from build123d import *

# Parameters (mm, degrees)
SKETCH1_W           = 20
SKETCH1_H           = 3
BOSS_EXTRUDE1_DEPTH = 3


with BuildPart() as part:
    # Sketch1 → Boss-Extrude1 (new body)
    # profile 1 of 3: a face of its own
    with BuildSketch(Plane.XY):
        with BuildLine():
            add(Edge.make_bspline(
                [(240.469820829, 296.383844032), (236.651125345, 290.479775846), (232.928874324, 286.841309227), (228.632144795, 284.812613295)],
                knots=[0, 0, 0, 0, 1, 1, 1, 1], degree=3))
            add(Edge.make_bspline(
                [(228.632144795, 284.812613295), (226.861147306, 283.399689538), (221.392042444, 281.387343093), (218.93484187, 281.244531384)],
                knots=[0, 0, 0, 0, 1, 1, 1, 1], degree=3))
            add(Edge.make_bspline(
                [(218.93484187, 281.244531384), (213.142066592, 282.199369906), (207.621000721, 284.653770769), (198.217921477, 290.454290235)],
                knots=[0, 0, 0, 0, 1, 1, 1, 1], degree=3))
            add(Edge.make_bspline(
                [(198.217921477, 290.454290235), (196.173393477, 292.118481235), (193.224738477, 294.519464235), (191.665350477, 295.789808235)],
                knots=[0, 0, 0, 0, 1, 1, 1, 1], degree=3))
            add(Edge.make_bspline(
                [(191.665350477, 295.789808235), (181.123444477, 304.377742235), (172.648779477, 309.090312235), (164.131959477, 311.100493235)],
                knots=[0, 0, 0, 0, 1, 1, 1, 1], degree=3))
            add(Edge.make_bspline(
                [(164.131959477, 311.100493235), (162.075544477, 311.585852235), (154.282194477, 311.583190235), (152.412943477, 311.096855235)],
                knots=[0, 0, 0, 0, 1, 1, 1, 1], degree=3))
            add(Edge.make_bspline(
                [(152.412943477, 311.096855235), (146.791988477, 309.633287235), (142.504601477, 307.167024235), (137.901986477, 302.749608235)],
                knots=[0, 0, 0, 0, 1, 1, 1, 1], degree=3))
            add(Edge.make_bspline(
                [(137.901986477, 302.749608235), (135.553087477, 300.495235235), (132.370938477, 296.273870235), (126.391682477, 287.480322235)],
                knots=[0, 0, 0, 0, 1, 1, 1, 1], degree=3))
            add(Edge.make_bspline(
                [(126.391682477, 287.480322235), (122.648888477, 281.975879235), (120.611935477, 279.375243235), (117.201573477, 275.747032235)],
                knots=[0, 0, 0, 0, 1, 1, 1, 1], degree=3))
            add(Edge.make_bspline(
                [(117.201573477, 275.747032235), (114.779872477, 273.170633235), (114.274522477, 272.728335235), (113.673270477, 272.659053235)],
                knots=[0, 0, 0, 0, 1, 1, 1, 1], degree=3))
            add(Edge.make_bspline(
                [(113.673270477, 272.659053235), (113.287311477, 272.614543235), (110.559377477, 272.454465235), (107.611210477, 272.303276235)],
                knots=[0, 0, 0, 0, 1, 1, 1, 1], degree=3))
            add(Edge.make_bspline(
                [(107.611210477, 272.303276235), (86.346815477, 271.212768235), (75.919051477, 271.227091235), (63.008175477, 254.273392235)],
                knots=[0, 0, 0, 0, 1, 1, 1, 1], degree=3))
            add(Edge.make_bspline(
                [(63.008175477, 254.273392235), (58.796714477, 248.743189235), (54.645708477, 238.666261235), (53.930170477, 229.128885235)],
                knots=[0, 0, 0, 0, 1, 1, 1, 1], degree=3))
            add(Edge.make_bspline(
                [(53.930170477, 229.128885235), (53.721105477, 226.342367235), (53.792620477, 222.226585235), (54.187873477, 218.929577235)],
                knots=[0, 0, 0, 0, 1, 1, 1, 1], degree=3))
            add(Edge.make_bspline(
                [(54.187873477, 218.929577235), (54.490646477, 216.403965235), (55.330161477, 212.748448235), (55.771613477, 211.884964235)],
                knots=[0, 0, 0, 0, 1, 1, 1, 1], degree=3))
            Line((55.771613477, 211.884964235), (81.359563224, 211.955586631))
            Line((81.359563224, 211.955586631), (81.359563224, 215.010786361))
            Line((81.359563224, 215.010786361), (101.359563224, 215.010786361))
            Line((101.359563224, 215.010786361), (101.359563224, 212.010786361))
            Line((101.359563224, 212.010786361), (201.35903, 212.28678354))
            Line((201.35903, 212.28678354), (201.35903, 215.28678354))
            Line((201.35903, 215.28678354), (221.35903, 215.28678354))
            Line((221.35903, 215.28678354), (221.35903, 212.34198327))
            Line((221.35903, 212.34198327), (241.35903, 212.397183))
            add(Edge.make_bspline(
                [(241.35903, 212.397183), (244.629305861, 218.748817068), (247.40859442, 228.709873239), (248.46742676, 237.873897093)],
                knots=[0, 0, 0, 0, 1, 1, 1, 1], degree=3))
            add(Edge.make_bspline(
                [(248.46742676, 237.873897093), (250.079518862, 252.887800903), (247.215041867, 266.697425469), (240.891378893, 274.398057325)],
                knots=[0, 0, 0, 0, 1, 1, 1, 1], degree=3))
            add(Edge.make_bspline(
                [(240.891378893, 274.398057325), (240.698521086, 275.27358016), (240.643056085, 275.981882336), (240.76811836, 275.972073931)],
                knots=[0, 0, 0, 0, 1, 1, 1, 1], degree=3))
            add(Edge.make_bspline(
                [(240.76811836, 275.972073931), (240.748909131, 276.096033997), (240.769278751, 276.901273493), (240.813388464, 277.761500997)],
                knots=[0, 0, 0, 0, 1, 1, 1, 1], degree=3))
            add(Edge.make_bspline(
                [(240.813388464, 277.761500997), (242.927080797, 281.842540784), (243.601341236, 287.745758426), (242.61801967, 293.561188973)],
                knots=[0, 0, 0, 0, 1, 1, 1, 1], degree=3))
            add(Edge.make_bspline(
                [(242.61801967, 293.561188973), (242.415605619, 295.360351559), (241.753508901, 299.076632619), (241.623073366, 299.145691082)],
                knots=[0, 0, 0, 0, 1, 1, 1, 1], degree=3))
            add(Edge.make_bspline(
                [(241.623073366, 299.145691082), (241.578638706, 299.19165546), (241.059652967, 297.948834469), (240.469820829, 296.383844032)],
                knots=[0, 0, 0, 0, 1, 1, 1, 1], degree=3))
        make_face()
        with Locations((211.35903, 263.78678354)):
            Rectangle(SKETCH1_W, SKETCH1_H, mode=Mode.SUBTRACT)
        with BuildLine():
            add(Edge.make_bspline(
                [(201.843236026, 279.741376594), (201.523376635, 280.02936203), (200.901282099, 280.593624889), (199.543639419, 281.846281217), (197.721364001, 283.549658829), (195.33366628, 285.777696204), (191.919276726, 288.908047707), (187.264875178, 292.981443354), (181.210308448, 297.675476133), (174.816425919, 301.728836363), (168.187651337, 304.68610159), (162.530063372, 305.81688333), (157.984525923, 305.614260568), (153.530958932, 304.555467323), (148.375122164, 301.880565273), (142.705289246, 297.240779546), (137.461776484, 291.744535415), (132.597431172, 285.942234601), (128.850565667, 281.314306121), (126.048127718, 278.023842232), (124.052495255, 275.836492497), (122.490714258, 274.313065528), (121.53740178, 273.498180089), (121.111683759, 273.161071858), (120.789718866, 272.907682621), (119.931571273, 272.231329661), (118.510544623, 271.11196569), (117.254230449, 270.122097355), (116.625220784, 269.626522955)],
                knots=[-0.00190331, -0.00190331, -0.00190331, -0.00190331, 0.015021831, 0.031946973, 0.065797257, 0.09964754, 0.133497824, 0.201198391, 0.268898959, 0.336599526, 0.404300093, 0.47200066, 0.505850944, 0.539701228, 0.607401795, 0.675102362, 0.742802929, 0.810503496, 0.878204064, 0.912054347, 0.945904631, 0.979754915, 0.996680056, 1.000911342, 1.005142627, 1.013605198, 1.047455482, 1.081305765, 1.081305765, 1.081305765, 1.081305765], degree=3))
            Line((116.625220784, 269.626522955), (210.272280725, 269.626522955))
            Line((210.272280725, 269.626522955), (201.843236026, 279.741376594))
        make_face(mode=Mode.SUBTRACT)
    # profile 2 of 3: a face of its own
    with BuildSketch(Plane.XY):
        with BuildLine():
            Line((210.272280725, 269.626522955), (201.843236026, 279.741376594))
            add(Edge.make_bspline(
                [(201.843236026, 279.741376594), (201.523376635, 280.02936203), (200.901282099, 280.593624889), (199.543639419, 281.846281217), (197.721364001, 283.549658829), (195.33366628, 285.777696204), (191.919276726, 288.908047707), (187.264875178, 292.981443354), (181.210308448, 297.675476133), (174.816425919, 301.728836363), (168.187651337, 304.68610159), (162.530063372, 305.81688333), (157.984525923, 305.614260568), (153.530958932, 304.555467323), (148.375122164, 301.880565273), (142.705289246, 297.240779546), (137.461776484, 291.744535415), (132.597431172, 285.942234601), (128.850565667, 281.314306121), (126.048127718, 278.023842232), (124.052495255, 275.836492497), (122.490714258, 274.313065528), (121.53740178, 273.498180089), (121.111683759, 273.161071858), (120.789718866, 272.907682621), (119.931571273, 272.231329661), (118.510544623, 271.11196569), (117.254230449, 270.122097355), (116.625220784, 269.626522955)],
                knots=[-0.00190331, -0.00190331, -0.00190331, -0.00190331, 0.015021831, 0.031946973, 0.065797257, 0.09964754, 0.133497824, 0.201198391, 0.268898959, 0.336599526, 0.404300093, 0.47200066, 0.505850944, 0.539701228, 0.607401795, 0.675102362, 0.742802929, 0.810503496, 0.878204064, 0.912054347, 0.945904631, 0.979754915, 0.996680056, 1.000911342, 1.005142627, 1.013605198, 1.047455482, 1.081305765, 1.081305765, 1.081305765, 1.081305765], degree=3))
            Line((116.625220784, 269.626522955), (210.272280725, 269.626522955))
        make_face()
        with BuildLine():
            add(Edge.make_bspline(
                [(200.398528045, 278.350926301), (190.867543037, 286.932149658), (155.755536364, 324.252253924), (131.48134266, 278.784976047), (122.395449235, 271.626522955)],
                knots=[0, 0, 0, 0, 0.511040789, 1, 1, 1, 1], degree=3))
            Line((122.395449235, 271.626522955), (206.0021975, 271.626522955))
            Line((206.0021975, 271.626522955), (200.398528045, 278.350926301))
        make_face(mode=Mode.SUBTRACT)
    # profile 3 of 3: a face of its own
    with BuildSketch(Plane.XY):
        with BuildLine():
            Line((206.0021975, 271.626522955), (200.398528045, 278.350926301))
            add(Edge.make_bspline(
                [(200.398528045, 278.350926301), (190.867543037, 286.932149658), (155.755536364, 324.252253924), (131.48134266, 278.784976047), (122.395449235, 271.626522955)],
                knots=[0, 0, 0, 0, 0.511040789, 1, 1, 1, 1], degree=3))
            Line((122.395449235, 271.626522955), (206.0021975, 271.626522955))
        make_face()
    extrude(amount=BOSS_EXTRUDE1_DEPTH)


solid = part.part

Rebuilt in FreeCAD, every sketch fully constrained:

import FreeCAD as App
import Part
import Sketcher

V = App.Vector


def add_polygon(sketch, points):
    """Adds a closed chain of lines whose ends are joined by coincident constraints."""
    first, n = sketch.GeometryCount, len(points)
    for a, b in zip(points, points[1:] + points[:1]):
        sketch.addGeometry(Part.LineSegment(App.Vector(*a, 0), App.Vector(*b, 0)), False)
    for i in range(n):
        sketch.addConstraint(Sketcher.Constraint("Coincident", first + i, 2, first + (i + 1) % n, 1))

doc = App.newDocument("Part")
body = doc.addObject("PartDesign::Body", "Body")

# Sketch on XY plane
sketch1 = body.newObject("Sketcher::SketchObject", "Sketch")
sketch1.AttachmentSupport = (doc.getObject("XY_Plane"), [""])
sketch1.MapMode = "FlatFace"
sketch1.addGeometry(Part.BSplineCurve([V(240.469821, 296.383844, 0), V(236.651125, 290.479776, 0), V(232.928874, 286.841309, 0), V(228.632145, 284.812613, 0)], [4, 4], [0, 1], False, 3, [1, 1, 1, 1], False), False)  # 0
sketch1.addGeometry(Part.BSplineCurve([V(228.632145, 284.812613, 0), V(226.861147, 283.39969, 0), V(221.392042, 281.387343, 0), V(218.934842, 281.244531, 0)], [4, 4], [0, 1], False, 3, [1, 1, 1, 1], False), False)  # 1
sketch1.addGeometry(Part.BSplineCurve([V(218.934842, 281.244531, 0), V(213.142067, 282.19937, 0), V(207.621001, 284.653771, 0), V(198.217921, 290.45429, 0)], [4, 4], [0, 1], False, 3, [1, 1, 1, 1], False), False)  # 2
sketch1.addGeometry(Part.BSplineCurve([V(198.217921, 290.45429, 0), V(196.173393, 292.118481, 0), V(193.224738, 294.519464, 0), V(191.66535, 295.789808, 0)], [4, 4], [0, 1], False, 3, [1, 1, 1, 1], False), False)  # 3
sketch1.addGeometry(Part.BSplineCurve([V(191.66535, 295.789808, 0), V(181.123444, 304.377742, 0), V(172.648779, 309.090312, 0), V(164.131959, 311.100493, 0)], [4, 4], [0, 1], False, 3, [1, 1, 1, 1], False), False)  # 4
sketch1.addGeometry(Part.BSplineCurve([V(164.131959, 311.100493, 0), V(162.075544, 311.585852, 0), V(154.282194, 311.58319, 0), V(152.412943, 311.096855, 0)], [4, 4], [0, 1], False, 3, [1, 1, 1, 1], False), False)  # 5
sketch1.addGeometry(Part.BSplineCurve([V(152.412943, 311.096855, 0), V(146.791988, 309.633287, 0), V(142.504601, 307.167024, 0), V(137.901986, 302.749608, 0)], [4, 4], [0, 1], False, 3, [1, 1, 1, 1], False), False)  # 6
sketch1.addGeometry(Part.BSplineCurve([V(137.901986, 302.749608, 0), V(135.553087, 300.495235, 0), V(132.370938, 296.27387, 0), V(126.391682, 287.480322, 0)], [4, 4], [0, 1], False, 3, [1, 1, 1, 1], False), False)  # 7
sketch1.addGeometry(Part.BSplineCurve([V(126.391682, 287.480322, 0), V(122.648888, 281.975879, 0), V(120.611935, 279.375243, 0), V(117.201573, 275.747032, 0)], [4, 4], [0, 1], False, 3, [1, 1, 1, 1], False), False)  # 8
sketch1.addGeometry(Part.BSplineCurve([V(117.201573, 275.747032, 0), V(114.779872, 273.170633, 0), V(114.274522, 272.728335, 0), V(113.67327, 272.659053, 0)], [4, 4], [0, 1], False, 3, [1, 1, 1, 1], False), False)  # 9
sketch1.addGeometry(Part.BSplineCurve([V(113.67327, 272.659053, 0), V(113.287311, 272.614543, 0), V(110.559377, 272.454465, 0), V(107.61121, 272.303276, 0)], [4, 4], [0, 1], False, 3, [1, 1, 1, 1], False), False)  # 10
sketch1.addGeometry(Part.BSplineCurve([V(107.61121, 272.303276, 0), V(86.346815, 271.212768, 0), V(75.919051, 271.227091, 0), V(63.008175, 254.273392, 0)], [4, 4], [0, 1], False, 3, [1, 1, 1, 1], False), False)  # 11
sketch1.addGeometry(Part.BSplineCurve([V(63.008175, 254.273392, 0), V(58.796714, 248.743189, 0), V(54.645708, 238.666261, 0), V(53.93017, 229.128885, 0)], [4, 4], [0, 1], False, 3, [1, 1, 1, 1], False), False)  # 12
sketch1.addGeometry(Part.BSplineCurve([V(53.93017, 229.128885, 0), V(53.721105, 226.342367, 0), V(53.79262, 222.226585, 0), V(54.187873, 218.929577, 0)], [4, 4], [0, 1], False, 3, [1, 1, 1, 1], False), False)  # 13
sketch1.addGeometry(Part.BSplineCurve([V(54.187873, 218.929577, 0), V(54.490646, 216.403965, 0), V(55.330161, 212.748448, 0), V(55.771613, 211.884964, 0)], [4, 4], [0, 1], False, 3, [1, 1, 1, 1], False), False)  # 14
sketch1.addGeometry(Part.LineSegment(V(55.771613, 211.884964, 0), V(81.359563, 211.955587, 0)), False)  # 15
sketch1.addGeometry(Part.LineSegment(V(81.359563, 211.955587, 0), V(81.359563, 215.010786, 0)), False)  # 16
sketch1.addGeometry(Part.LineSegment(V(81.359563, 215.010786, 0), V(101.359563, 215.010786, 0)), False)  # 17
sketch1.addGeometry(Part.LineSegment(V(101.359563, 215.010786, 0), V(101.359563, 212.010786, 0)), False)  # 18
sketch1.addGeometry(Part.LineSegment(V(101.359563, 212.010786, 0), V(201.35903, 212.286784, 0)), False)  # 19
sketch1.addGeometry(Part.LineSegment(V(201.35903, 212.286784, 0), V(201.35903, 215.286784, 0)), False)  # 20
sketch1.addGeometry(Part.LineSegment(V(201.35903, 215.286784, 0), V(221.35903, 215.286784, 0)), False)  # 21
sketch1.addGeometry(Part.LineSegment(V(221.35903, 215.286784, 0), V(221.35903, 212.341983, 0)), False)  # 22
sketch1.addGeometry(Part.LineSegment(V(221.35903, 212.341983, 0), V(241.35903, 212.397183, 0)), False)  # 23
sketch1.addGeometry(Part.BSplineCurve([V(241.35903, 212.397183, 0), V(244.629306, 218.748817, 0), V(247.408594, 228.709873, 0), V(248.467427, 237.873897, 0)], [4, 4], [0, 1], False, 3, [1, 1, 1, 1], False), False)  # 24
sketch1.addGeometry(Part.BSplineCurve([V(248.467427, 237.873897, 0), V(250.079519, 252.887801, 0), V(247.215042, 266.697425, 0), V(240.891379, 274.398057, 0)], [4, 4], [0, 1], False, 3, [1, 1, 1, 1], False), False)  # 25
sketch1.addGeometry(Part.BSplineCurve([V(240.891379, 274.398057, 0), V(240.698521, 275.27358, 0), V(240.643056, 275.981882, 0), V(240.768118, 275.972074, 0)], [4, 4], [0, 1], False, 3, [1, 1, 1, 1], False), False)  # 26
sketch1.addGeometry(Part.BSplineCurve([V(240.768118, 275.972074, 0), V(240.748909, 276.096034, 0), V(240.769279, 276.901273, 0), V(240.813388, 277.761501, 0)], [4, 4], [0, 1], False, 3, [1, 1, 1, 1], False), False)  # 27
sketch1.addGeometry(Part.BSplineCurve([V(240.813388, 277.761501, 0), V(242.927081, 281.842541, 0), V(243.601341, 287.745758, 0), V(242.61802, 293.561189, 0)], [4, 4], [0, 1], False, 3, [1, 1, 1, 1], False), False)  # 28
sketch1.addGeometry(Part.BSplineCurve([V(242.61802, 293.561189, 0), V(242.415606, 295.360352, 0), V(241.753509, 299.076633, 0), V(241.623073, 299.145691, 0)], [4, 4], [0, 1], False, 3, [1, 1, 1, 1], False), False)  # 29
sketch1.addGeometry(Part.BSplineCurve([V(241.623073, 299.145691, 0), V(241.578639, 299.191655, 0), V(241.059653, 297.948834, 0), V(240.469821, 296.383844, 0)], [4, 4], [0, 1], False, 3, [1, 1, 1, 1], False), False)  # 30
add_polygon(sketch1, [(221.35903, 262.286784), (201.35903, 262.286784), (201.35903, 265.286784), (221.35903, 265.286784)])  # lines 31-34
sketch1.addConstraint([
    Sketcher.Constraint("Block", 0),
    Sketcher.Constraint("Block", 1),
    Sketcher.Constraint("Block", 2),
    Sketcher.Constraint("Block", 3),
    Sketcher.Constraint("Block", 4),
    Sketcher.Constraint("Block", 5),
    Sketcher.Constraint("Block", 6),
    Sketcher.Constraint("Block", 7),
    Sketcher.Constraint("Block", 8),
    Sketcher.Constraint("Block", 9),
    Sketcher.Constraint("Block", 10),
    Sketcher.Constraint("Block", 11),
    Sketcher.Constraint("Block", 12),
    Sketcher.Constraint("Block", 13),
    Sketcher.Constraint("Block", 14),
    Sketcher.Constraint("Block", 24),
    Sketcher.Constraint("Block", 25),
    Sketcher.Constraint("Block", 26),
    Sketcher.Constraint("Block", 27),
    Sketcher.Constraint("Block", 28),
    Sketcher.Constraint("Block", 29),
    Sketcher.Constraint("Block", 30),
    Sketcher.Constraint("Coincident", 14, 2, 15, 1),
    Sketcher.Constraint("Coincident", 15, 2, 16, 1),
    Sketcher.Constraint("Coincident", 16, 2, 17, 1),
    Sketcher.Constraint("Coincident", 17, 2, 18, 1),
    Sketcher.Constraint("Coincident", 18, 2, 19, 1),
    Sketcher.Constraint("Coincident", 19, 2, 20, 1),
    Sketcher.Constraint("Coincident", 20, 2, 21, 1),
    Sketcher.Constraint("Coincident", 21, 2, 22, 1),
    Sketcher.Constraint("Coincident", 22, 2, 23, 1),
    Sketcher.Constraint("Coincident", 23, 2, 24, 1),
    Sketcher.Constraint("Vertical", 16),
    Sketcher.Constraint("Horizontal", 17),
    Sketcher.Constraint("Vertical", 18),
    Sketcher.Constraint("Vertical", 20),
    Sketcher.Constraint("Horizontal", 21),
    Sketcher.Constraint("Vertical", 22),
    Sketcher.Constraint("Horizontal", 31),
    Sketcher.Constraint("Vertical", 32),
    Sketcher.Constraint("Horizontal", 33),
    Sketcher.Constraint("Vertical", 34),
    Sketcher.Constraint("DistanceX", 17, 1, 17, 2, 20.0),
    Sketcher.Constraint("DistanceX", 21, 1, 21, 2, 20.0),
    Sketcher.Constraint("DistanceX", 31, 2, 31, 1, 20.0),
    Sketcher.Constraint("DistanceY", 18, 2, 18, 1, 3.0),
    Sketcher.Constraint("DistanceY", 20, 1, 20, 2, 3.0),
    Sketcher.Constraint("DistanceY", 32, 1, 32, 2, 3.0),
    Sketcher.Constraint("DistanceX", 22, 2, 23, 2, 20.0),
    Sketcher.Constraint("DistanceY", 20, 2, 31, 2, 47.0),
    Sketcher.Constraint("DistanceX", 31, 2, 21, 2, 20.0),
    Sketcher.Constraint("DistanceY", 16, 1, 16, 2, 3.0552),
    Sketcher.Constraint("DistanceY", 22, 2, 22, 1, 2.9448),
    Sketcher.Constraint("DistanceY", 22, 2, 23, 2, 0.0552),
    Sketcher.Constraint("Distance", 15, 25.588047),
    Sketcher.Constraint("DistanceY", -1, 1, 15, 2, 211.955587),
])
pad1 = body.newObject("PartDesign::Pad", "Pad")
pad1.Profile = sketch1
pad1.Length = 3

doc.recompute()
